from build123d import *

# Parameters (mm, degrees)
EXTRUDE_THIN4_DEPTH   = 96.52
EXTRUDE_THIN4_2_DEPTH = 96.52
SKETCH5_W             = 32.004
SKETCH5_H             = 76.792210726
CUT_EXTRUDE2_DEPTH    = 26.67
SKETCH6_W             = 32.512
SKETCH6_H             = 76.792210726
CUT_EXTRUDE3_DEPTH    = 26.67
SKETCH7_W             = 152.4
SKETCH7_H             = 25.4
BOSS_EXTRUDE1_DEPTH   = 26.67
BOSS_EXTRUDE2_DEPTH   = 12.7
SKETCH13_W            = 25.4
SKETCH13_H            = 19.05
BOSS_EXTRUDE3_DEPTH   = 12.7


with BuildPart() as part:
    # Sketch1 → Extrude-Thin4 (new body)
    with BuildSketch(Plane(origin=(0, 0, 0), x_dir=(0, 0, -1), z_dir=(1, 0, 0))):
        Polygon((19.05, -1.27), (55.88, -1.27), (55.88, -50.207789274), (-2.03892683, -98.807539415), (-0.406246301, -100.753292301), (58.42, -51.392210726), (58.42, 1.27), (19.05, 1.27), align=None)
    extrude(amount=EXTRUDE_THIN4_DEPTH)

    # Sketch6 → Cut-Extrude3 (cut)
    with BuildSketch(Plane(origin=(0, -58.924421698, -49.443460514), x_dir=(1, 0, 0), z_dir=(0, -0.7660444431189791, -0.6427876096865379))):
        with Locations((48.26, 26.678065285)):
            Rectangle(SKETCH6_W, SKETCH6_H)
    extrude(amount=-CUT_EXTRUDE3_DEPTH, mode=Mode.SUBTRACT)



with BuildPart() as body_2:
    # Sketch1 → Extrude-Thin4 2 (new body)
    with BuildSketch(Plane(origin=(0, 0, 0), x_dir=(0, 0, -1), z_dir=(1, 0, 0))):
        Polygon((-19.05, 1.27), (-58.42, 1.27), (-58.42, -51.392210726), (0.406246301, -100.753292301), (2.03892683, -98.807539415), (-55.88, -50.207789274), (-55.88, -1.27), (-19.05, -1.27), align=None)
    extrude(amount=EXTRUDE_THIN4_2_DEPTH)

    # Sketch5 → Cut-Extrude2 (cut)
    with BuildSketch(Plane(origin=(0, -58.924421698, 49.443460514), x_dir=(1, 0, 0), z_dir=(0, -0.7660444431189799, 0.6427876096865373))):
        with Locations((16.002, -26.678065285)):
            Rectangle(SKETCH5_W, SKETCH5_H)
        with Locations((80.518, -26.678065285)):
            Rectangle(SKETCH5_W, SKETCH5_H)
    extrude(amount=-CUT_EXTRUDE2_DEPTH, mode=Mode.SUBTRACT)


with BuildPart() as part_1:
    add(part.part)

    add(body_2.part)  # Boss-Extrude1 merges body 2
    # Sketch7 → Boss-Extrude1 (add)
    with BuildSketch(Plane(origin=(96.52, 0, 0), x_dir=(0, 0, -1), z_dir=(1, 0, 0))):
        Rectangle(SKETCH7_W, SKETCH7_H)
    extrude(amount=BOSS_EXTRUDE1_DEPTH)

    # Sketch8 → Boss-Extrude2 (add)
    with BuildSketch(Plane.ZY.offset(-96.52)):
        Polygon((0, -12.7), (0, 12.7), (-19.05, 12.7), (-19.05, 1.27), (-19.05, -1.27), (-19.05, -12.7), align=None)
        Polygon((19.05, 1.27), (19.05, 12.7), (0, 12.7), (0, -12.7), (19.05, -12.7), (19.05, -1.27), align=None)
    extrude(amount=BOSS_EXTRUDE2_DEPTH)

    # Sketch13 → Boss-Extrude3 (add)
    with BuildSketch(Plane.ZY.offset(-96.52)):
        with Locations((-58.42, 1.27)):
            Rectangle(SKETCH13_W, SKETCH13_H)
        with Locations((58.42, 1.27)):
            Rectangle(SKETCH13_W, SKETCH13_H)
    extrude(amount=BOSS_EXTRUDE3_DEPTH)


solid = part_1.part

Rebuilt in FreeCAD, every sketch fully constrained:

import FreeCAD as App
import Part
import Sketcher
Q = App.Units.Quantity


def add_polygon(sketch, points):
    """Adds a closed chain of lines whose ends are joined by coincident constraints."""
    first, n = sketch.GeometryCount, len(points)
    for a, b in zip(points, points[1:] + points[:1]):
        sketch.addGeometry(Part.LineSegment(App.Vector(*a, 0), App.Vector(*b, 0)), False)
    for i in range(n):
        sketch.addConstraint(Sketcher.Constraint("Coincident", first + i, 2, first + (i + 1) % n, 1))

doc = App.newDocument("Part")
body = doc.addObject("PartDesign::Body", "Body")

# Sketch on YZ plane
sketch1 = body.newObject("Sketcher::SketchObject", "Sketch")
sketch1.AttachmentSupport = (doc.getObject("YZ_Plane"), [""])
sketch1.MapMode = "FlatFace"
add_polygon(sketch1, [(-1.3, -19.1), (-1.3, -55.9), (-50.2, -55.9), (-98.8, 2), (-100.8, 0.4), (-51.4, -58.4), (1.3, -58.4), (1.3, -19.1)])  # lines 0-7
sketch1.addConstraint([
    Sketcher.Constraint("Vertical", 0),
    Sketcher.Constraint("Horizontal", 1),
    Sketcher.Constraint("Horizontal", 5),
    Sketcher.Constraint("Vertical", 6),
    Sketcher.Constraint("Horizontal", 7),
    Sketcher.Constraint("Perpendicular", 2, 3),
    Sketcher.Constraint("Perpendicular", 3, 4),
    Sketcher.Constraint("DistanceX", 7, 2, 7, 1, Q("0.1 in")),
    Sketcher.Constraint("Angle", 2, Q("130 deg")),
    Sketcher.Constraint("Distance", 3, Q("0.1 in")),
    Sketcher.Constraint("DistanceY", 0, 2, 0, 1, Q("1.45 in")),
    Sketcher.Constraint("DistanceY", 6, 1, 6, 2, Q("1.55 in")),
    Sketcher.Constraint("DistanceY", 0, 2, -1, 1, Q("2.2 in")),
    Sketcher.Constraint("DistanceX", 0, 2, -1, 1, Q("0.05 in")),
    Sketcher.Constraint("DistanceX", 1, 2, 1, 1, 48.937789),
    Sketcher.Constraint("Distance", 2, 75.607789),
])
pad1 = body.newObject("PartDesign::Pad", "Pad")
pad1.Profile = sketch1
pad1.Length = Q("3.8 in")

# Sketch on an angled plane
sketch2 = body.newObject("Sketcher::SketchObject", "Sketch001")
sketch2.Placement = App.Placement(App.Vector(0, -58.924422, -49.443461), App.Rotation(App.Vector(1, 0, 0), App.Vector(0, -0.64278761, 0.766044443), App.Vector(0, -0.766044443, -0.64278761), "ZXY"))
add_polygon(sketch2, [(32, 65), (32, -12), (65, -12), (65, 65)])  # lines 0-3
sketch2.addConstraint([
    Sketcher.Constraint("Vertical", 0),
    Sketcher.Constraint("Horizontal", 1),
    Sketcher.Constraint("Vertical", 2),
    Sketcher.Constraint("Horizontal", 3),
    Sketcher.Constraint("DistanceX", 1, 1, 1, 2, Q("1.28 in")),
    Sketcher.Constraint("DistanceX", -1, 1, 0, 2, Q("1.26 in")),
    Sketcher.Constraint("DistanceY", 0, 2, 0, 1, 76.792211),
    Sketcher.Constraint("DistanceY", 0, 2, -1, 1, 11.71804),
])
pocket1 = body.newObject("PartDesign::Pocket", "Pocket")
pocket1.Profile = sketch2
pocket1.Length = Q("1.05 in")
body2 = doc.addObject("PartDesign::Body", "Body001")

# Sketch on YZ plane
sketch3 = body2.newObject("Sketcher::SketchObject", "Sketch002")
sketch3.AttachmentSupport = (doc.getObject("YZ_Plane001"), [""])
sketch3.MapMode = "FlatFace"
add_polygon(sketch3, [(1.3, 19.1), (1.3, 58.4), (-51.4, 58.4), (-100.8, -0.4), (-98.8, -2), (-50.2, 55.9), (-1.3, 55.9), (-1.3, 19.1)])  # lines 0-7
sketch3.addConstraint([
    Sketcher.Constraint("Vertical", 0),
    Sketcher.Constraint("Horizontal", 1),
    Sketcher.Constraint("Horizontal", 5),
    Sketcher.Constraint("Vertical", 6),
    Sketcher.Constraint("Horizontal", 7),
    Sketcher.Constraint("Perpendicular", 2, 3),
    Sketcher.Constraint("Perpendicular", 3, 4),
    Sketcher.Constraint("DistanceX", 7, 1, 7, 2, Q("0.1 in")),
    Sketcher.Constraint("Angle", 2, Q("-130 deg")),
    Sketcher.Constraint("Distance", 3, Q("0.1 in")),
    Sketcher.Constraint("DistanceY", 0, 1, 0, 2, Q("1.55 in")),
    Sketcher.Constraint("DistanceY", 6, 2, 6, 1, Q("1.45 in")),
    Sketcher.Constraint("DistanceY", -1, 1, 0, 2, Q("2.3 in")),
    Sketcher.Constraint("DistanceX", -1, 1, 0, 2, Q("0.05 in")),
    Sketcher.Constraint("DistanceX", 1, 2, 1, 1, 52.662211),
    Sketcher.Constraint("Distance", 2, 76.792211),
])
pad2 = body2.newObject("PartDesign::Pad", "Pad001")
pad2.Profile = sketch3
pad2.Length = Q("3.8 in")

# Sketch on an angled plane
sketch4 = body2.newObject("Sketcher::SketchObject", "Sketch003")
sketch4.Placement = App.Placement(App.Vector(0, -58.924422, 49.443461), App.Rotation(App.Vector(1, 0, 0), App.Vector(0, 0.64278761, 0.766044443), App.Vector(0, -0.766044443, 0.64278761), "ZXY"))
add_polygon(sketch4, [(0, 12), (0, -65), (32, -65), (32, 12)])  # lines 0-3
add_polygon(sketch4, [(65, 12), (65, -65), (97, -65), (97, 12)])  # lines 4-7
sketch4.addConstraint([
    Sketcher.Constraint("Vertical", 0),
    Sketcher.Constraint("Horizontal", 1),
    Sketcher.Constraint("Vertical", 2),
    Sketcher.Constraint("Horizontal", 3),
    Sketcher.Constraint("Vertical", 4),
    Sketcher.Constraint("Horizontal", 5),
    Sketcher.Constraint("Vertical", 6),
    Sketcher.Constraint("Horizontal", 7),
    Sketcher.Constraint("PointOnObject", 0, 2, -2),
    Sketcher.Constraint("Horizontal", 1, 2, 4, 2),
    Sketcher.Constraint("Horizontal", 3, 2, 6, 2),
    Sketcher.Constraint("Equal", 3, 5),
    Sketcher.Constraint("DistanceX", 1, 1, 1, 2, Q("1.26 in")),
    Sketcher.Constraint("DistanceX", -1, 1, 5, 2, Q("3.8 in")),
    Sketcher.Constraint("DistanceY", 0, 2, 0, 1, 76.792211),
    Sketcher.Constraint("DistanceY", 0, 2, -1, 1, 65.074171),
])
pocket2 = body2.newObject("PartDesign::Pocket", "Pocket001")
pocket2.Profile = sketch4
pocket2.Length = Q("1.05 in")
doc.recompute()

boolean = body.newObject("PartDesign::Boolean", "Boolean")
boolean.Type = "Fuse"
boolean.addObjects([body2])

# Sketch on YZ plane
sketch5 = body.newObject("Sketcher::SketchObject", "Sketch004")
sketch5.AttachmentSupport = (doc.getObject("YZ_Plane"), [""])
sketch5.MapMode = "FlatFace"
sketch5.AttachmentOffset = App.Placement(App.Vector(0, 0, 3.8 * 25.4), App.Rotation())
add_polygon(sketch5, [(13, 76), (-13, 76), (-13, -76), (13, -76)])  # lines 0-3
sketch5.addConstraint([
    Sketcher.Constraint("Horizontal", 0),
    Sketcher.Constraint("Vertical", 1),
    Sketcher.Constraint("Horizontal", 2),
    Sketcher.Constraint("Vertical", 3),
    Sketcher.Constraint("Symmetric", 0, 2, 2, 2, -1, 1),
    Sketcher.Constraint("DistanceX", 0, 2, 0, 1, Q("1 in")),
    Sketcher.Constraint("DistanceY", 1, 2, 1, 1, Q("6 in")),
])
pad3 = body.newObject("PartDesign::Pad", "Pad002")
pad3.Profile = sketch5
pad3.Length = Q("1.05 in")

# Sketch on YZ plane
sketch6 = body.newObject("Sketcher::SketchObject", "Sketch005")
sketch6.AttachmentSupport = (doc.getObject("YZ_Plane"), [""])
sketch6.MapMode = "FlatFace"
sketch6.AttachmentOffset = App.Placement(App.Vector(0, 0, 3.8 * 25.4), App.Rotation())
add_polygon(sketch6, [(13, -19), (-13, -19), (-13, 19), (13, 19)])  # lines 0-3
sketch6.addConstraint([
    Sketcher.Constraint("Horizontal", 0),
    Sketcher.Constraint("Vertical", 1),
    Sketcher.Constraint("Horizontal", 2),
    Sketcher.Constraint("Vertical", 3),
    Sketcher.Constraint("Symmetric", 0, 2, 2, 2, -1, 1),
    Sketcher.Constraint("DistanceX", 0, 2, 0, 1, Q("1 in")),
    Sketcher.Constraint("DistanceY", 1, 1, 1, 2, Q("1.5 in")),
])
pad4 = body.newObject("PartDesign::Pad", "Pad003")
pad4.Profile = sketch6
pad4.Length = Q("0.5 in")
pad4.Reversed = True

# Sketch on YZ plane
sketch7 = body.newObject("Sketcher::SketchObject", "Sketch006")
sketch7.AttachmentSupport = (doc.getObject("YZ_Plane"), [""])
sketch7.MapMode = "FlatFace"
sketch7.AttachmentOffset = App.Placement(App.Vector(0, 0, 3.8 * 25.4), App.Rotation())
add_polygon(sketch7, [(11, -71), (-8, -71), (-8, -46), (11, -46)])  # lines 0-3
add_polygon(sketch7, [(11, 46), (-8, 46), (-8, 71), (11, 71)])  # lines 4-7
sketch7.addConstraint([
    Sketcher.Constraint("Horizontal", 0),
    Sketcher.Constraint("Vertical", 1),
    Sketcher.Constraint("Horizontal", 2),
    Sketcher.Constraint("Vertical", 3),
    Sketcher.Constraint("Horizontal", 4),
    Sketcher.Constraint("Vertical", 5),
    Sketcher.Constraint("Horizontal", 6),
    Sketcher.Constraint("Vertical", 7),
    Sketcher.Constraint("Symmetric", 1, 2, 4, 2, -1),
    Sketcher.Constraint("Symmetric", 3, 2, 6, 2, -1),
    Sketcher.Constraint("DistanceY", 1, 1, 1, 2, Q("1 in")),
    Sketcher.Constraint("DistanceX", 0, 2, 0, 1, Q("0.75 in")),
    Sketcher.Constraint("DistanceY", 0, 2, -1, 1, Q("2.8 in")),
    Sketcher.Constraint("DistanceX", 0, 2, -1, 1, Q("0.325 in")),
])
pad5 = body.newObject("PartDesign::Pad", "Pad004")
pad5.Profile = sketch7
pad5.Length = Q("0.5 in")
pad5.Reversed = True

doc.recompute()
